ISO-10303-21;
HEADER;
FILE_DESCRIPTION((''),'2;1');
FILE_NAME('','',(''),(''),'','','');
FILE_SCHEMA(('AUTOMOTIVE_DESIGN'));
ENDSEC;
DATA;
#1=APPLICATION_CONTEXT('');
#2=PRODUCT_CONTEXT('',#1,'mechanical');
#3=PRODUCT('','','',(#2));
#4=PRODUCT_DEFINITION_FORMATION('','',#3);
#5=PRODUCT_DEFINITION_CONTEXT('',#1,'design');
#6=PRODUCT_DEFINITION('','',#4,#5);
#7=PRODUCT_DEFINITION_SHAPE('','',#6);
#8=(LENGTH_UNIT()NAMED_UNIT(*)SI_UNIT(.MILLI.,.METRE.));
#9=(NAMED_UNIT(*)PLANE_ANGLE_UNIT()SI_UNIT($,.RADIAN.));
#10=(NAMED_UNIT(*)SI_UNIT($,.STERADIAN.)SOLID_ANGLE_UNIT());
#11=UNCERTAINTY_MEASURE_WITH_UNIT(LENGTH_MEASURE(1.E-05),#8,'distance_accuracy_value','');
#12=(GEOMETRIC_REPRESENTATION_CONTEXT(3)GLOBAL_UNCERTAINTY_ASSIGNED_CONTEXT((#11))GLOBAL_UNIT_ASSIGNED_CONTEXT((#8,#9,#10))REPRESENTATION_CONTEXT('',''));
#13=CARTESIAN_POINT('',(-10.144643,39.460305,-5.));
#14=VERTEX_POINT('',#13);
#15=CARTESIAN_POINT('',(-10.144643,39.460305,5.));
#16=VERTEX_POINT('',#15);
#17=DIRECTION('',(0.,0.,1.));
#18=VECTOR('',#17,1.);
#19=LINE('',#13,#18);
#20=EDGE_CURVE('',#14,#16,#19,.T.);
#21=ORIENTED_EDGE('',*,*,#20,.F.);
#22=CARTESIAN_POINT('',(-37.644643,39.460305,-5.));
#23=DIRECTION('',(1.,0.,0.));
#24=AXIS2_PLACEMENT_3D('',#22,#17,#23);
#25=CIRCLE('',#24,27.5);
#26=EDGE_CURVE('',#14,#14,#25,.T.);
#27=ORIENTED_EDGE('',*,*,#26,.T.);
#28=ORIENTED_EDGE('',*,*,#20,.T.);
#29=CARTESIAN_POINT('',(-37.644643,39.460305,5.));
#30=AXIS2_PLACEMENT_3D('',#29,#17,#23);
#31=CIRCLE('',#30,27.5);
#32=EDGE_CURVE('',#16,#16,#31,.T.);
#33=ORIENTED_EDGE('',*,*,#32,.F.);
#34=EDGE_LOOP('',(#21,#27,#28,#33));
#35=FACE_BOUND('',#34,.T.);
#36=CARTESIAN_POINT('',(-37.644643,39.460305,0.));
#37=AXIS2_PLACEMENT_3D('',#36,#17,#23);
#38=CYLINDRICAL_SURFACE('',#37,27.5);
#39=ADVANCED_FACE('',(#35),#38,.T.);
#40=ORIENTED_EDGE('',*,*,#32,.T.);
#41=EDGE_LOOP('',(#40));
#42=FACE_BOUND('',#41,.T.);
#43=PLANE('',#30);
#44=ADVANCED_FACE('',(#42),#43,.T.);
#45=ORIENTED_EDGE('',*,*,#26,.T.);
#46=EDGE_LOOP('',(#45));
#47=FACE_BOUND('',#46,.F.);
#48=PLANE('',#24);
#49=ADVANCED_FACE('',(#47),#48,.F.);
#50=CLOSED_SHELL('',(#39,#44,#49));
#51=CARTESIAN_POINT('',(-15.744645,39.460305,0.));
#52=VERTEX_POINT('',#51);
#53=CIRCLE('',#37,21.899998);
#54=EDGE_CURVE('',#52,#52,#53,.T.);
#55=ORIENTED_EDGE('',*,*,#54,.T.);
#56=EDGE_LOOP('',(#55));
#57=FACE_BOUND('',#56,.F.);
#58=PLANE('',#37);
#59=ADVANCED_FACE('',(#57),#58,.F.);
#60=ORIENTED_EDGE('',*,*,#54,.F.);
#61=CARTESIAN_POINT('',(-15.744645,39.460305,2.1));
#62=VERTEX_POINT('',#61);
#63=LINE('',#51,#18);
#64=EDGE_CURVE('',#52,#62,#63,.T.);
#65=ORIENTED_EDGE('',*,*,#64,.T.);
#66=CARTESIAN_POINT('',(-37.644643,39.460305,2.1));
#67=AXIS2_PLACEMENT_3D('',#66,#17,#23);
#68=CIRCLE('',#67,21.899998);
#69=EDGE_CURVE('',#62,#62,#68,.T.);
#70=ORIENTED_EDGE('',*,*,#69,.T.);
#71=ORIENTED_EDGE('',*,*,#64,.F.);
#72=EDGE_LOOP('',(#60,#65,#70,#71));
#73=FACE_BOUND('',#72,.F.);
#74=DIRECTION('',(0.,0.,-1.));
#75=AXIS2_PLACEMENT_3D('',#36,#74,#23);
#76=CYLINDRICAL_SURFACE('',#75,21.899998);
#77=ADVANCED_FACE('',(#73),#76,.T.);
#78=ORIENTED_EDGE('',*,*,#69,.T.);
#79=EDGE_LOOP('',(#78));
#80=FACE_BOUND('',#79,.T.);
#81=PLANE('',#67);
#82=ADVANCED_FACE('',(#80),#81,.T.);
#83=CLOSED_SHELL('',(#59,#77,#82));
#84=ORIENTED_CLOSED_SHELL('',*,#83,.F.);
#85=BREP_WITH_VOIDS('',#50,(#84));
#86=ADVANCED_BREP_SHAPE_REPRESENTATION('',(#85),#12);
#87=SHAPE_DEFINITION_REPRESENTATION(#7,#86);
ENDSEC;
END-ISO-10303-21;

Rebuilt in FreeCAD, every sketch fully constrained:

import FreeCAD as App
import Part
import Sketcher
Q = App.Units.Quantity

doc = App.newDocument("Part")
body = doc.addObject("PartDesign::Body", "Body")

# Sketch on XY plane
sketch1 = doc.addObject("Sketcher::SketchObject", "Sketch")
body.addObject(sketch1)
sketch1.AttachmentSupport = (doc.XY_Plane, [""])
sketch1.MapMode = "FlatFace"
sketch1.addGeometry(Part.Circle(App.Vector(-38, 39, 0), App.Vector(0, 0, 1), 28), False)
sketch1.addConstraint([
    Sketcher.Constraint("Diameter", 0, Q("55 mm")),
    Sketcher.Constraint("DistanceX", 0, 3, -1, 1, Q("37.644643 mm")),
    Sketcher.Constraint("DistanceY", -1, 1, 0, 3, Q("39.460305 mm")),
])
pad1 = doc.addObject("PartDesign::Pad", "Pad")
body.addObject(pad1)
pad1.Profile = sketch1
pad1.Type = "TwoLengths"
pad1.Length = 5
pad1.Length2 = 5

# Sketch on XY plane
sketch2 = doc.addObject("Sketcher::SketchObject", "Sketch001")
body.addObject(sketch2)
sketch2.AttachmentSupport = (doc.XY_Plane, [""])
sketch2.MapMode = "FlatFace"
sketch2.addGeometry(Part.Circle(App.Vector(-38, 39, 0), App.Vector(0, 0, 1), 22), False)
sketch2.addConstraint([
    Sketcher.Constraint("Diameter", 0, Q("43.799996 mm")),
    Sketcher.Constraint("DistanceX", 0, 3, -1, 1, Q("37.644643 mm")),
    Sketcher.Constraint("DistanceY", -1, 1, 0, 3, Q("39.460305 mm")),
])
pocket1 = doc.addObject("PartDesign::Pocket", "Pocket")
body.addObject(pocket1)
pocket1.Profile = sketch2
pocket1.Length = 2.1
pocket1.Reversed = True

doc.recompute()
